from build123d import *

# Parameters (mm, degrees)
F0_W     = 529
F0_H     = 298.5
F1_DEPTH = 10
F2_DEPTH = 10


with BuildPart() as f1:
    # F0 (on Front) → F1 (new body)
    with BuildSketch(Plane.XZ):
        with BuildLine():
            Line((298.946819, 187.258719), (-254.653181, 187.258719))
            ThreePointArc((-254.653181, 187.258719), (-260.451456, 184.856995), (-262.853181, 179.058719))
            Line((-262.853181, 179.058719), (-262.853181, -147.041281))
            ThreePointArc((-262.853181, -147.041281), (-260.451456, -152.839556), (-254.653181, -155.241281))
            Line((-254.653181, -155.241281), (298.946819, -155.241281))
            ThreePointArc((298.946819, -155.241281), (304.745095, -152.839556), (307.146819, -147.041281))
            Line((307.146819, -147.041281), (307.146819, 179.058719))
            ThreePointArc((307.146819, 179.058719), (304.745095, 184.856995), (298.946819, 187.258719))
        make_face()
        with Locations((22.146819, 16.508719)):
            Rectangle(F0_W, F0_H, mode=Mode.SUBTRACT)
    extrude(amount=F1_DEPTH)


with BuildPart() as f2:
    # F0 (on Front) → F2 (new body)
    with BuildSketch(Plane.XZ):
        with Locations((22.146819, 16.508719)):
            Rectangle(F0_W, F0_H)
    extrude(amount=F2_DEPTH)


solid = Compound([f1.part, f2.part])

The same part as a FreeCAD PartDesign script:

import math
import FreeCAD as App
import Part
import Sketcher
Q = App.Units.Quantity


def add_polygon(sketch, points):
    """Adds a closed chain of lines whose ends are joined by coincident constraints."""
    first, n = sketch.GeometryCount, len(points)
    for a, b in zip(points, points[1:] + points[:1]):
        sketch.addGeometry(Part.LineSegment(App.Vector(*a, 0), App.Vector(*b, 0)), False)
    for i in range(n):
        sketch.addConstraint(Sketcher.Constraint("Coincident", first + i, 2, first + (i + 1) % n, 1))

doc = App.newDocument("Part")
body = doc.addObject("PartDesign::Body", "Body")

# Sketch on XZ plane
sketch1 = body.newObject("Sketcher::SketchObject", "Sketch")
sketch1.AttachmentSupport = (doc.getObject("XZ_Plane"), [""])
sketch1.MapMode = "FlatFace"
sketch1.addGeometry(Part.LineSegment(App.Vector(299, 187, 0), App.Vector(-255, 187, 0)), False)  # 0
sketch1.addGeometry(Part.ArcOfCircle(Part.Circle(App.Vector(-255, 179, 0), App.Vector(0, 0, 1), 8), math.radians(90), math.radians(180)), False)  # 1
sketch1.addGeometry(Part.LineSegment(App.Vector(-263, 179, 0), App.Vector(-263, -147, 0)), False)  # 2
sketch1.addGeometry(Part.ArcOfCircle(Part.Circle(App.Vector(-255, -147, 0), App.Vector(0, 0, 1), 8), math.radians(-180), math.radians(-90)), False)  # 3
sketch1.addGeometry(Part.LineSegment(App.Vector(-255, -155, 0), App.Vector(299, -155, 0)), False)  # 4
sketch1.addGeometry(Part.ArcOfCircle(Part.Circle(App.Vector(299, -147, 0), App.Vector(0, 0, 1), 8), math.radians(-90), math.radians(0)), False)  # 5
sketch1.addGeometry(Part.LineSegment(App.Vector(307, -147, 0), App.Vector(307, 179, 0)), False)  # 6
sketch1.addGeometry(Part.ArcOfCircle(Part.Circle(App.Vector(299, 179, 0), App.Vector(0, 0, 1), 8), math.radians(0), math.radians(90)), False)  # 7
add_polygon(sketch1, [(287, -133), (-242, -133), (-242, 166), (287, 166)])  # lines 8-11
sketch1.addConstraint(Sketcher.Constraint("Tangent", 0, 2, 1, 1))
sketch1.addConstraint(Sketcher.Constraint("Tangent", 1, 2, 2, 1))
sketch1.addConstraint(Sketcher.Constraint("Tangent", 2, 2, 3, 1))
sketch1.addConstraint(Sketcher.Constraint("Tangent", 3, 2, 4, 1))
sketch1.addConstraint(Sketcher.Constraint("Tangent", 4, 2, 5, 1))
sketch1.addConstraint(Sketcher.Constraint("Tangent", 5, 2, 6, 1))
sketch1.addConstraint(Sketcher.Constraint("Tangent", 6, 2, 7, 1))
sketch1.addConstraint(Sketcher.Constraint("Tangent", 7, 2, 0, 1))
sketch1.addConstraint(Sketcher.Constraint("Horizontal", 0))
sketch1.addConstraint(Sketcher.Constraint("Vertical", 2))
sketch1.addConstraint(Sketcher.Constraint("Horizontal", 4))
sketch1.addConstraint(Sketcher.Constraint("Vertical", 6))
sketch1.addConstraint(Sketcher.Constraint("Horizontal", 8))
sketch1.addConstraint(Sketcher.Constraint("Vertical", 9))
sketch1.addConstraint(Sketcher.Constraint("Horizontal", 10))
sketch1.addConstraint(Sketcher.Constraint("Vertical", 11))
sketch1.addConstraint(Sketcher.Constraint("Equal", 1, 3))
sketch1.addConstraint(Sketcher.Constraint("Equal", 3, 5))
sketch1.addConstraint(Sketcher.Constraint("Equal", 5, 7))
sketch1.addConstraint(Sketcher.Constraint("Radius", 1, Q("8.2 mm")))
sketch1.addConstraint(Sketcher.Constraint("DistanceX", 8, 2, 8, 1, Q("529 mm")))
sketch1.addConstraint(Sketcher.Constraint("DistanceX", 0, 2, 0, 1, Q("553.6 mm")))
sketch1.addConstraint(Sketcher.Constraint("DistanceY", 2, 2, 2, 1, Q("326.1 mm")))
sketch1.addConstraint(Sketcher.Constraint("DistanceY", 9, 1, 9, 2, Q("298.5 mm")))
sketch1.addConstraint(Sketcher.Constraint("DistanceX", 2, 2, 8, 2, Q("20.5 mm")))
sketch1.addConstraint(Sketcher.Constraint("DistanceY", 2, 2, 8, 2, Q("14.3 mm")))
sketch1.addConstraint(Sketcher.Constraint("DistanceX", 1, 3, -1, 1, Q("254.653181 mm")))
sketch1.addConstraint(Sketcher.Constraint("DistanceY", -1, 1, 1, 3, Q("179.058719 mm")))
pad1 = body.newObject("PartDesign::Pad", "Pad")
pad1.Profile = sketch1
pad1.Length = 10
body2 = doc.addObject("PartDesign::Body", "Body001")

# Sketch on XZ plane
sketch2 = body2.newObject("Sketcher::SketchObject", "Sketch001")
sketch2.AttachmentSupport = (doc.getObject("XZ_Plane001"), [""])
sketch2.MapMode = "FlatFace"
add_polygon(sketch2, [(-242, 166), (-242, -133), (287, -133), (287, 166)])  # lines 0-3
sketch2.addConstraint(Sketcher.Constraint("Vertical", 0))
sketch2.addConstraint(Sketcher.Constraint("Horizontal", 1))
sketch2.addConstraint(Sketcher.Constraint("Vertical", 2))
sketch2.addConstraint(Sketcher.Constraint("Horizontal", 3))
sketch2.addConstraint(Sketcher.Constraint("DistanceX", 1, 1, 1, 2, Q("529 mm")))
sketch2.addConstraint(Sketcher.Constraint("DistanceY", 0, 2, 0, 1, Q("298.5 mm")))
sketch2.addConstraint(Sketcher.Constraint("DistanceX", 0, 2, -1, 1, Q("242.353181 mm")))
sketch2.addConstraint(Sketcher.Constraint("DistanceY", 0, 2, -1, 1, Q("132.741281 mm")))
pad2 = body2.newObject("PartDesign::Pad", "Pad001")
pad2.Profile = sketch2
pad2.Length = 10

doc.recompute()
